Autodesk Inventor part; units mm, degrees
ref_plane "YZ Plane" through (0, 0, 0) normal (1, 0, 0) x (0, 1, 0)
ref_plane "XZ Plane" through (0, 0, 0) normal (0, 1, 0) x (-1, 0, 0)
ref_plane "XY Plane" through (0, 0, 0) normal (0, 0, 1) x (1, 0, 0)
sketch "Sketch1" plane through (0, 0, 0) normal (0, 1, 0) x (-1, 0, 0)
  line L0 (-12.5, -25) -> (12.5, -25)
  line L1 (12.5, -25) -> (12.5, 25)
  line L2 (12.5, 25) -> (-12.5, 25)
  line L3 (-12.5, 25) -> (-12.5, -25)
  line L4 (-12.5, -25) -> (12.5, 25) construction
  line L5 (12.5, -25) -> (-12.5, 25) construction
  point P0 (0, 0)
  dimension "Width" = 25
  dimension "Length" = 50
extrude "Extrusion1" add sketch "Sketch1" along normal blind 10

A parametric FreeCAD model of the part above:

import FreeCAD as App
import Part
import Sketcher
from FreeCAD import Vector


def add_polygon(sketch, points):
    """Adds a closed chain of lines whose ends are joined by coincident constraints."""
    first, n = sketch.GeometryCount, len(points)
    for a, b in zip(points, points[1:] + points[:1]):
        sketch.addGeometry(Part.LineSegment(App.Vector(*a, 0), App.Vector(*b, 0)), False)
    for i in range(n):
        sketch.addConstraint(Sketcher.Constraint("Coincident", first + i, 2, first + (i + 1) % n, 1))

doc = App.newDocument("Part")
body = doc.addObject("PartDesign::Body", "Body")

# Sketch on XZ plane
sketch1 = doc.addObject("Sketcher::SketchObject", "Sketch")
body.addObject(sketch1)
sketch1.AttachmentSupport = (doc.XZ_Plane, [""])
sketch1.MapMode = "FlatFace"
add_polygon(sketch1, [(12, 25), (12, -25), (-12, -25), (-12, 25)])  # lines 0-3
sketch1.addConstraint(Sketcher.Constraint("Vertical", 0))
sketch1.addConstraint(Sketcher.Constraint("Horizontal", 1))
sketch1.addConstraint(Sketcher.Constraint("Vertical", 2))
sketch1.addConstraint(Sketcher.Constraint("Horizontal", 3))
sketch1.addConstraint(Sketcher.Constraint("Symmetric", 0, 2, 2, 2, -1, 1))
sketch1.addConstraint(Sketcher.Constraint("DistanceX", 1, 2, 1, 1, 25.0))
sketch1.addConstraint(Sketcher.Constraint("DistanceY", 0, 2, 0, 1, 50.0))
pad1 = doc.addObject("PartDesign::Pad", "Pad")
body.addObject(pad1)
pad1.Profile = sketch1
pad1.Length = 10
pad1.Reversed = True

doc.recompute()
